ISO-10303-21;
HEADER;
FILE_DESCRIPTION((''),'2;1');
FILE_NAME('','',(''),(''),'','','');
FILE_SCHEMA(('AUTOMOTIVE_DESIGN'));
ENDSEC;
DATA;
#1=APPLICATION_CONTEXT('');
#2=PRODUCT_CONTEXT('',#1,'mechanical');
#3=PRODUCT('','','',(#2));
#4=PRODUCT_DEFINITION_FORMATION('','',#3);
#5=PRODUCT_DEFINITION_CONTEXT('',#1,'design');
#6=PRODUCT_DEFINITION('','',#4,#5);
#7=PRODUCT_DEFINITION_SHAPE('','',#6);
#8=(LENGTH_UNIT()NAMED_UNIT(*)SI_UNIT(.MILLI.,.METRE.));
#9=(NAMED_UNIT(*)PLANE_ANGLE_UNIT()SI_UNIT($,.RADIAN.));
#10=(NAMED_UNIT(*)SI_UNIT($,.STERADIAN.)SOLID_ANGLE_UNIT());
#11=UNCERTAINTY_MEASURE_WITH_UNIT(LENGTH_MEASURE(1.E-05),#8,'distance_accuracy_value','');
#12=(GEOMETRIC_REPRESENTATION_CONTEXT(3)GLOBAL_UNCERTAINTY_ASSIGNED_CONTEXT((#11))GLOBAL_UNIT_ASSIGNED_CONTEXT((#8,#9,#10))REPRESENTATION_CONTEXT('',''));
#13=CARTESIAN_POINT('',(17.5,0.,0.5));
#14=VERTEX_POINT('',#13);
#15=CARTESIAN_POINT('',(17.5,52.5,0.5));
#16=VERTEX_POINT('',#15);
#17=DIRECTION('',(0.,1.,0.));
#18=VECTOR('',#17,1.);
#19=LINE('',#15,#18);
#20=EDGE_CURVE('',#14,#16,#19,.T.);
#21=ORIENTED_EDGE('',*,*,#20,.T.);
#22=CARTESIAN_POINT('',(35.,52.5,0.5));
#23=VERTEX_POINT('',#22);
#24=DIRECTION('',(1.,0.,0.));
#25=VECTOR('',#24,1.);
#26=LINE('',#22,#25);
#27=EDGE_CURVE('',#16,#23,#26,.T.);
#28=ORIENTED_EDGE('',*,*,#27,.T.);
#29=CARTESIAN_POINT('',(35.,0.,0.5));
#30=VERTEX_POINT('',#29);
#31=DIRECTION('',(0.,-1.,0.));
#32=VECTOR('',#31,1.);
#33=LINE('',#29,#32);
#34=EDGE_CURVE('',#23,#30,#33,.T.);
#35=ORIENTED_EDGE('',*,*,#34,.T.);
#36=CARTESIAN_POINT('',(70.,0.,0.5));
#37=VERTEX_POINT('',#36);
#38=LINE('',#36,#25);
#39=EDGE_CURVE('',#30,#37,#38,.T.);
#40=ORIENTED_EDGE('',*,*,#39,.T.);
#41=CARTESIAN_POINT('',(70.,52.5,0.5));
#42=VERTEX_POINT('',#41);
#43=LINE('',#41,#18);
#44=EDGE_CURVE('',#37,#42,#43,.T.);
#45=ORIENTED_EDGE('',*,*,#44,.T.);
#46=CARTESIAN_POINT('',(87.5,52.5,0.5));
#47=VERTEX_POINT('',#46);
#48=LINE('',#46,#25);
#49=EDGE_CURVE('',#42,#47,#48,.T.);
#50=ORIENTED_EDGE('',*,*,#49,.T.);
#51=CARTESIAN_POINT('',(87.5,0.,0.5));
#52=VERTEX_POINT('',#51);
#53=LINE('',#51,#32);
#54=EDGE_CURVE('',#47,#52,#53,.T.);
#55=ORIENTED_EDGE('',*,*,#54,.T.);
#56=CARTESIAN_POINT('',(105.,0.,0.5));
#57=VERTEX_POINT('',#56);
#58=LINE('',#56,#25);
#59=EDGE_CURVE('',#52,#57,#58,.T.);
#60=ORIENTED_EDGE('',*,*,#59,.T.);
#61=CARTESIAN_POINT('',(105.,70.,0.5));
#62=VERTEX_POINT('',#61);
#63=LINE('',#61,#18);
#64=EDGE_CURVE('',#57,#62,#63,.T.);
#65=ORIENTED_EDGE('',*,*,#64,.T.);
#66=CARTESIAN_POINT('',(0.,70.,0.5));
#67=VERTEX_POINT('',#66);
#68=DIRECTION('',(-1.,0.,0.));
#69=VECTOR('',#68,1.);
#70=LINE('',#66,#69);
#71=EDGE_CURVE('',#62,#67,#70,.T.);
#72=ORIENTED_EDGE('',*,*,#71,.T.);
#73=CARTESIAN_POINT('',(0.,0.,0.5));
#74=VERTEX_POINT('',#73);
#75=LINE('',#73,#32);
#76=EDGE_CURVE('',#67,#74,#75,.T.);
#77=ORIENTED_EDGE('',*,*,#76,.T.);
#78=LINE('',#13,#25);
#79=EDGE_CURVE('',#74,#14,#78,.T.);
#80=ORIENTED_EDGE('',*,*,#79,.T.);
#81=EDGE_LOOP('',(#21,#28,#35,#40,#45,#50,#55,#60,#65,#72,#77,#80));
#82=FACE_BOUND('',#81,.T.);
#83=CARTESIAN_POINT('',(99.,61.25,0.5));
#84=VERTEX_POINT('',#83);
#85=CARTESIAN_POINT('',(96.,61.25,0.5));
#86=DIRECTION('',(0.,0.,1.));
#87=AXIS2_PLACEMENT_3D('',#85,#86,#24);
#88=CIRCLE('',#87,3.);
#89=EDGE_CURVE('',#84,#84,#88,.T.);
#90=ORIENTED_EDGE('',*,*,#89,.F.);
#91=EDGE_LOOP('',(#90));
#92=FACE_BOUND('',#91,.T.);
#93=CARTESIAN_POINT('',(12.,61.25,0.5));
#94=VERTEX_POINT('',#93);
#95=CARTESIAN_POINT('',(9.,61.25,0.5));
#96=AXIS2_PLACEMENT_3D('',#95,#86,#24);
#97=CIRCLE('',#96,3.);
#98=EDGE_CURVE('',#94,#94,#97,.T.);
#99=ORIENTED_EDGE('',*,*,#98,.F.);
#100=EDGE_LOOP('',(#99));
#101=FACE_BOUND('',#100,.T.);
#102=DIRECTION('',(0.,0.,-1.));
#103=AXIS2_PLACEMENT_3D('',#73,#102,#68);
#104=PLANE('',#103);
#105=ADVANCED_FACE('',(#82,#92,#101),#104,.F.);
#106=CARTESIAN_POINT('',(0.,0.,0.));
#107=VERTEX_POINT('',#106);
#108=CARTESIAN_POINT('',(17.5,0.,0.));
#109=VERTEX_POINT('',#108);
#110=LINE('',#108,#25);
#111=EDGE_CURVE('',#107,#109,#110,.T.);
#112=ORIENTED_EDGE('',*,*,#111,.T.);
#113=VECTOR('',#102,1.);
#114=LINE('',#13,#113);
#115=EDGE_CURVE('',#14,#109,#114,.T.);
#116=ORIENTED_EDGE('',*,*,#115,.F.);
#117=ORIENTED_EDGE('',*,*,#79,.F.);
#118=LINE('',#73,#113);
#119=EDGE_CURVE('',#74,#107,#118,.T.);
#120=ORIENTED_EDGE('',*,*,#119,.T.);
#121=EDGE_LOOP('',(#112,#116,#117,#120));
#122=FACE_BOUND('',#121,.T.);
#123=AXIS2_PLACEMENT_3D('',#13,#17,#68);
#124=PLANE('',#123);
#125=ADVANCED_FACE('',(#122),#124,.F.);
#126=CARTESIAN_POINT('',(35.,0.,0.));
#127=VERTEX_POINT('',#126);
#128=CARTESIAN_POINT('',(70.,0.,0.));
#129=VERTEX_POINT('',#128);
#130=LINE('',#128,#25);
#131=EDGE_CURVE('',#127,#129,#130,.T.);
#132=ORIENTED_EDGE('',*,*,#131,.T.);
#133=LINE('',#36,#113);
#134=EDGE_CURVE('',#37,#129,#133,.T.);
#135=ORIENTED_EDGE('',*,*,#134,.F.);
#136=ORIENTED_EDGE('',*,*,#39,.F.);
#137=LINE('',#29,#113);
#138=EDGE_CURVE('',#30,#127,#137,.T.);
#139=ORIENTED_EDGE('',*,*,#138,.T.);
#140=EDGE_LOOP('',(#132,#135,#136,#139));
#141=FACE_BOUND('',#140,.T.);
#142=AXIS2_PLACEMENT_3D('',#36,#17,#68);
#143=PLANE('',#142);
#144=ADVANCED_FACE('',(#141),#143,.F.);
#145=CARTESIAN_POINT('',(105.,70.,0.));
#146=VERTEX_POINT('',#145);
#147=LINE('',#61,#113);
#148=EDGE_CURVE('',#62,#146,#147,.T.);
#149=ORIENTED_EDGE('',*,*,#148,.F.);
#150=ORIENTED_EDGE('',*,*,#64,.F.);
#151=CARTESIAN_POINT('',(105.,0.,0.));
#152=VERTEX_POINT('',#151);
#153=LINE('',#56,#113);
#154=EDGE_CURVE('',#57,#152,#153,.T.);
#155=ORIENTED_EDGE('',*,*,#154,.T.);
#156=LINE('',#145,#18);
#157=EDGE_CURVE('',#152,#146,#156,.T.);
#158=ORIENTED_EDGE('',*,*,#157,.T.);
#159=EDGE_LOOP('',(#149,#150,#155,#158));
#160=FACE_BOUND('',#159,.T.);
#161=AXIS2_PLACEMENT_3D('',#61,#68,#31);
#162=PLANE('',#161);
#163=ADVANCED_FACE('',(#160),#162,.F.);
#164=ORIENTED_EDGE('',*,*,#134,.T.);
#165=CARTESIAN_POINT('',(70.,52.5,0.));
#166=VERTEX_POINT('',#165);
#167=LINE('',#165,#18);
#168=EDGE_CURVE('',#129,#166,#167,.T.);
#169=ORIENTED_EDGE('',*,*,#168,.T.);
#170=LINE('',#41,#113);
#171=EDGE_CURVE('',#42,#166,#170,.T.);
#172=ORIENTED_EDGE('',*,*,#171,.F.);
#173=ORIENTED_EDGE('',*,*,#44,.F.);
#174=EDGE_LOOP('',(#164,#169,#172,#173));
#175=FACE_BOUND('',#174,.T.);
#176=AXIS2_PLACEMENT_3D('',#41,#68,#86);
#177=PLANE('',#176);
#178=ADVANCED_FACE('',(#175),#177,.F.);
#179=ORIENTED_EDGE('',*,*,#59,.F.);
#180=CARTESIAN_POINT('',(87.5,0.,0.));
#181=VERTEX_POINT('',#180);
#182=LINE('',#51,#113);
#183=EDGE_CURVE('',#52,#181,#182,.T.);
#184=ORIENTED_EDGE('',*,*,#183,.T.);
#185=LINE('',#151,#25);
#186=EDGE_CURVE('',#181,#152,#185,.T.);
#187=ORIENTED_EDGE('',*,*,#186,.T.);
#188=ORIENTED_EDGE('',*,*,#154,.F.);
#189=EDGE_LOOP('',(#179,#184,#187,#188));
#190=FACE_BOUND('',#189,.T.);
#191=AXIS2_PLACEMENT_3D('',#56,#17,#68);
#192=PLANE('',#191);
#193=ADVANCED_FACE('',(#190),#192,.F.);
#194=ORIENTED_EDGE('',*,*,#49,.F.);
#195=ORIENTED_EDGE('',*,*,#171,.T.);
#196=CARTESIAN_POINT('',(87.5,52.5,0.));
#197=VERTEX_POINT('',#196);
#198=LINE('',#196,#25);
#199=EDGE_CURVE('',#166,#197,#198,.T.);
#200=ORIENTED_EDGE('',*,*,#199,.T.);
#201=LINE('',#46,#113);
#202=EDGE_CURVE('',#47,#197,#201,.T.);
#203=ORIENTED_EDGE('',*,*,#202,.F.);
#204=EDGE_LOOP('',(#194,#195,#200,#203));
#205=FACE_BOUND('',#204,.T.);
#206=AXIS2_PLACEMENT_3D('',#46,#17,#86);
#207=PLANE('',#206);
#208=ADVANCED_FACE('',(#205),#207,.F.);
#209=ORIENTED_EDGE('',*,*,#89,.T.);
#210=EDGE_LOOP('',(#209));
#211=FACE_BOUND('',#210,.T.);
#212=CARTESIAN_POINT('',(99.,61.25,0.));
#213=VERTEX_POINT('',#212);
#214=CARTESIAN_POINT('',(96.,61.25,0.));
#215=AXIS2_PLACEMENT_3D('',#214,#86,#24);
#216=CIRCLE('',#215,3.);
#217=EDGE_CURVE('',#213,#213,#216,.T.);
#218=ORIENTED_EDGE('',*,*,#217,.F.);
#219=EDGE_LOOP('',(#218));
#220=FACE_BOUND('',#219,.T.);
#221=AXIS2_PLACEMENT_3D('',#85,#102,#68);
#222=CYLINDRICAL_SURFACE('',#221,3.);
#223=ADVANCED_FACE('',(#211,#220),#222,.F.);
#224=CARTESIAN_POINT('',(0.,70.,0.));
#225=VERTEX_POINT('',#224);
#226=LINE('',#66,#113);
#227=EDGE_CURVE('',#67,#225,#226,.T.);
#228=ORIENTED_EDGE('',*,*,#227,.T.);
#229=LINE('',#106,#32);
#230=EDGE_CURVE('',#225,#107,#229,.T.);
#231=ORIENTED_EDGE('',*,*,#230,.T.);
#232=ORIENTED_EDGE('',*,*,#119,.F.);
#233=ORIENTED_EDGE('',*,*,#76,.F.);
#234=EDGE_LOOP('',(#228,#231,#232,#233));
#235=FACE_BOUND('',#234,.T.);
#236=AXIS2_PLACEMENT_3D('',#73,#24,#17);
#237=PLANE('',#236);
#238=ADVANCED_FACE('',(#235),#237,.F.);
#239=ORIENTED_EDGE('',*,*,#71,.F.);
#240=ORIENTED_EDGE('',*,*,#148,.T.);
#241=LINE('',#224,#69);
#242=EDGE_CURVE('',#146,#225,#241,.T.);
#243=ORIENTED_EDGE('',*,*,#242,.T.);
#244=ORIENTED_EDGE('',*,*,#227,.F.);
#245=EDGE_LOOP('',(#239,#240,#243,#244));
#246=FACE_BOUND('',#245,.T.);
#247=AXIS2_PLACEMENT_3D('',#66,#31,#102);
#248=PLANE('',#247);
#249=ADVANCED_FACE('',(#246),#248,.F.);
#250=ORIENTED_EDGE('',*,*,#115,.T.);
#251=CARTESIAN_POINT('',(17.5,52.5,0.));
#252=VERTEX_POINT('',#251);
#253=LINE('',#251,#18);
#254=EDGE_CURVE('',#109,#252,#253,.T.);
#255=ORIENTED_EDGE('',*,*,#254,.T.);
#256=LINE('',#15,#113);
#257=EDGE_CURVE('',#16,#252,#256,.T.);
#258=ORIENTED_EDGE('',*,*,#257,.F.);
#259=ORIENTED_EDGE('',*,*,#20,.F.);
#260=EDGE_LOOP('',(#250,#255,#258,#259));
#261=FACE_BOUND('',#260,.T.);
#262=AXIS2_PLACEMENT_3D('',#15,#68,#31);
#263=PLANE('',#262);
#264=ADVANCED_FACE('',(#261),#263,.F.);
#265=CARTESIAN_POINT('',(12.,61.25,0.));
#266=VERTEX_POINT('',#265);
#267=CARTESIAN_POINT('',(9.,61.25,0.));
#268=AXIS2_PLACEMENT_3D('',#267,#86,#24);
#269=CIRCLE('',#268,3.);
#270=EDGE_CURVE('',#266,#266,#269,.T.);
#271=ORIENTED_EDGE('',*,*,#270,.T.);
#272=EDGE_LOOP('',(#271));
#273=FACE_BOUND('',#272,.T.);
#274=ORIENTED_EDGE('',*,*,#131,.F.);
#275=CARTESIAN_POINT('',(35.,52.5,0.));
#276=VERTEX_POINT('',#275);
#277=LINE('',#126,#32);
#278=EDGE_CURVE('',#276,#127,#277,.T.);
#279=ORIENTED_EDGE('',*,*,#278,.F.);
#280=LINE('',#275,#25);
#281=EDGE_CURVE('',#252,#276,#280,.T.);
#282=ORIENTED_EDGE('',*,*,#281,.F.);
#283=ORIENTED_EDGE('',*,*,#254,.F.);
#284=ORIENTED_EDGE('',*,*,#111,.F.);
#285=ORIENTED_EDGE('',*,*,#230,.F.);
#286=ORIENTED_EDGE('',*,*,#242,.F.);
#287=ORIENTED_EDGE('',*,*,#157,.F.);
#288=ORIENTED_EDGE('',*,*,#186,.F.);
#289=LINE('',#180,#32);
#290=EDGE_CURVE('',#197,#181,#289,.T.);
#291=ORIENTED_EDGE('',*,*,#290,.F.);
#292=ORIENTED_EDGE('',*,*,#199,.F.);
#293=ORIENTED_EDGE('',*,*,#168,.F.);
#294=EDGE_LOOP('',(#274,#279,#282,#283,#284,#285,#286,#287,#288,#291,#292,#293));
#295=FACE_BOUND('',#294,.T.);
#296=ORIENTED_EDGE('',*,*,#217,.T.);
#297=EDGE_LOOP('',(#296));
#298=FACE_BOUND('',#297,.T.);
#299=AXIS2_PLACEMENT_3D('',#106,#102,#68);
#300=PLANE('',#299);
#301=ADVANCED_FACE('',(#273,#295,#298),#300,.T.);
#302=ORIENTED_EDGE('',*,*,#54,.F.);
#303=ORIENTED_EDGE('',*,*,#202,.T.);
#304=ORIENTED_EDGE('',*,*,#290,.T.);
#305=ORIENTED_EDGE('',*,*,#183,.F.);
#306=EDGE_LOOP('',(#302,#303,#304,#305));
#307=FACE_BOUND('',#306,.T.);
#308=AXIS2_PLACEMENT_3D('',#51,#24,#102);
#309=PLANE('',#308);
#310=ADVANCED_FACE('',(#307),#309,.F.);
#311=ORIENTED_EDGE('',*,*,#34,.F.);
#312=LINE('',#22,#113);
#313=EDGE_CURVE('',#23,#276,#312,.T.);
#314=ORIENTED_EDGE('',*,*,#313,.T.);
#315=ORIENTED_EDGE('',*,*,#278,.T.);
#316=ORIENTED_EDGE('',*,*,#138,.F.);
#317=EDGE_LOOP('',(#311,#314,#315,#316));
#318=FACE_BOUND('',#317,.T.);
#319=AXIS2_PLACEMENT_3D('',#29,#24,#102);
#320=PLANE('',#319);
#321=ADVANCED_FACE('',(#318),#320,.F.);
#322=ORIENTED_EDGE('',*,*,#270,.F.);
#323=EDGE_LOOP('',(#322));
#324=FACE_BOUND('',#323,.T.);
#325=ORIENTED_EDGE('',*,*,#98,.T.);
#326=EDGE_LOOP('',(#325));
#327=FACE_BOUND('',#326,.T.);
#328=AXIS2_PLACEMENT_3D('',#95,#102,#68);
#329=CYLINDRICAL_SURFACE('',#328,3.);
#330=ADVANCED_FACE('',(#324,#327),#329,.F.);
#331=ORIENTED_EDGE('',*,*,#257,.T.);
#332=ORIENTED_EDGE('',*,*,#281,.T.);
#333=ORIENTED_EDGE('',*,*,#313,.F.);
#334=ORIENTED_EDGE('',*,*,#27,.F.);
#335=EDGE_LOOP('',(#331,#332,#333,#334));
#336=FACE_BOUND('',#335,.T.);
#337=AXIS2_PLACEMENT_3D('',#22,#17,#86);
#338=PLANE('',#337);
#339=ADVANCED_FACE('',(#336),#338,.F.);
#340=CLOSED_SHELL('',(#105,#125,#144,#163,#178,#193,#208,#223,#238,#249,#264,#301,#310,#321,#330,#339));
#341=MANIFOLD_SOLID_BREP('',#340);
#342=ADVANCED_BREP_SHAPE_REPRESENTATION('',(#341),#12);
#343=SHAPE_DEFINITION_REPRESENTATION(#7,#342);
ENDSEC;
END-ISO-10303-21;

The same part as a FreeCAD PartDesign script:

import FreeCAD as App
import Part
import Sketcher

V = App.Vector

doc = App.newDocument("Part")
params = doc.addObject("Spreadsheet::Sheet", "Params")
for row, (alias, value) in enumerate([
    ("sketch1_diameter", "6 mm"),
    ("sketch1_width", "35 mm"),
    ("sketch1_width2", "105 mm"),
    ("sketch1_height", "70 mm"),
    ("sketch1_height2", "52.5 mm"),
    ("pad1_length", "0.5 mm"),
], start=1):
    params.set(f"A{row}", alias)
    params.set(f"B{row}", "=" + value)
    params.setAlias(f"B{row}", alias)

body = doc.addObject("PartDesign::Body", "Body")

sketch1 = doc.addObject("Sketcher::SketchObject", "Sketch")
body.addObject(sketch1)
sketch1.AttachmentSupport = (doc.XY_Plane, [""])
sketch1.MapMode = "FlatFace"
sketch1.addGeometry([
    Part.LineSegment(V(0, 70, 0), V(0, 0, 0)),
    Part.LineSegment(V(0, 0, 0), V(17.5, 0, 0)),
    Part.LineSegment(V(17.5, 0, 0), V(17.5, 52.5, 0)),
    Part.LineSegment(V(17.5, 52.5, 0), V(35, 52.5, 0)),
    Part.LineSegment(V(35, 52.5, 0), V(35, 0, 0)),
    Part.LineSegment(V(35, 0, 0), V(70, 0, 0)),
    Part.LineSegment(V(70, 0, 0), V(70, 52.5, 0)),
    Part.LineSegment(V(70, 52.5, 0), V(87.5, 52.5, 0)),
    Part.LineSegment(V(87.5, 52.5, 0), V(87.5, 0, 0)),
    Part.LineSegment(V(87.5, 0, 0), V(105, 0, 0)),
    Part.LineSegment(V(105, 0, 0), V(105, 70, 0)),
    Part.LineSegment(V(105, 70, 0), V(0, 70, 0)),
    Part.Circle(V(96, 61.2, 0), V(0, 0, 1), 3),
    Part.Circle(V(9, 61.2, 0), V(0, 0, 1), 3),
], False)
sketch1.addConstraint([
    Sketcher.Constraint("Coincident", 0, 2, 1, 1),
    Sketcher.Constraint("Coincident", 1, 2, 2, 1),
    Sketcher.Constraint("Coincident", 2, 2, 3, 1),
    Sketcher.Constraint("Coincident", 3, 2, 4, 1),
    Sketcher.Constraint("Coincident", 4, 2, 5, 1),
    Sketcher.Constraint("Coincident", 5, 2, 6, 1),
    Sketcher.Constraint("Coincident", 6, 2, 7, 1),
    Sketcher.Constraint("Coincident", 7, 2, 8, 1),
    Sketcher.Constraint("Coincident", 8, 2, 9, 1),
    Sketcher.Constraint("Coincident", 9, 2, 10, 1),
    Sketcher.Constraint("Coincident", 10, 2, 11, 1),
    Sketcher.Constraint("Coincident", 11, 2, 0, 1),
    Sketcher.Constraint("Vertical", 0),
    Sketcher.Constraint("Horizontal", 1),
    Sketcher.Constraint("Vertical", 2),
    Sketcher.Constraint("Horizontal", 3),
    Sketcher.Constraint("Vertical", 4),
    Sketcher.Constraint("Horizontal", 5),
    Sketcher.Constraint("Vertical", 6),
    Sketcher.Constraint("Horizontal", 7),
    Sketcher.Constraint("Vertical", 8),
    Sketcher.Constraint("Horizontal", 9),
    Sketcher.Constraint("Vertical", 10),
    Sketcher.Constraint("Horizontal", 11),
    Sketcher.Constraint("Coincident", 0, 2, -1, 1),
    Sketcher.Constraint("Equal", 12, 13),
    Sketcher.Constraint("PointOnObject", 4, 2, -1),
    Sketcher.Constraint("PointOnObject", 8, 2, -1),
    Sketcher.Constraint("Horizontal", 12, 3, 13, 3),
    Sketcher.Constraint("Horizontal", 3, 2, 6, 2),
    Sketcher.Constraint("Equal", 1, 3),
    Sketcher.Constraint("Equal", 3, 7),
    Sketcher.Constraint("Equal", 7, 9),
    Sketcher.Constraint("Diameter", 12, 6.0),
    Sketcher.Constraint("DistanceX", 5, 1, 5, 2, 35.0),
    Sketcher.Constraint("DistanceX", 11, 2, 11, 1, 105.0),
    Sketcher.Constraint("DistanceY", 0, 2, 0, 1, 70.0),
    Sketcher.Constraint("DistanceY", 2, 1, 2, 2, 52.5),
    Sketcher.Constraint("DistanceX", -1, 1, 12, 3, 96.0),
    Sketcher.Constraint("DistanceX", -1, 1, 13, 3, 9.0),
    Sketcher.Constraint("DistanceY", -1, 1, 12, 3, 61.25),
])
sketch1.setExpression("Constraints[33]", "Params.sketch1_diameter")
sketch1.setExpression("Constraints[34]", "Params.sketch1_width")
sketch1.setExpression("Constraints[35]", "Params.sketch1_width2")
sketch1.setExpression("Constraints[36]", "Params.sketch1_height")
sketch1.setExpression("Constraints[37]", "Params.sketch1_height2")
pad1 = doc.addObject("PartDesign::Pad", "Pad")
body.addObject(pad1)
pad1.Profile = sketch1
pad1.setExpression("Length", "Params.pad1_length")

doc.recompute()
